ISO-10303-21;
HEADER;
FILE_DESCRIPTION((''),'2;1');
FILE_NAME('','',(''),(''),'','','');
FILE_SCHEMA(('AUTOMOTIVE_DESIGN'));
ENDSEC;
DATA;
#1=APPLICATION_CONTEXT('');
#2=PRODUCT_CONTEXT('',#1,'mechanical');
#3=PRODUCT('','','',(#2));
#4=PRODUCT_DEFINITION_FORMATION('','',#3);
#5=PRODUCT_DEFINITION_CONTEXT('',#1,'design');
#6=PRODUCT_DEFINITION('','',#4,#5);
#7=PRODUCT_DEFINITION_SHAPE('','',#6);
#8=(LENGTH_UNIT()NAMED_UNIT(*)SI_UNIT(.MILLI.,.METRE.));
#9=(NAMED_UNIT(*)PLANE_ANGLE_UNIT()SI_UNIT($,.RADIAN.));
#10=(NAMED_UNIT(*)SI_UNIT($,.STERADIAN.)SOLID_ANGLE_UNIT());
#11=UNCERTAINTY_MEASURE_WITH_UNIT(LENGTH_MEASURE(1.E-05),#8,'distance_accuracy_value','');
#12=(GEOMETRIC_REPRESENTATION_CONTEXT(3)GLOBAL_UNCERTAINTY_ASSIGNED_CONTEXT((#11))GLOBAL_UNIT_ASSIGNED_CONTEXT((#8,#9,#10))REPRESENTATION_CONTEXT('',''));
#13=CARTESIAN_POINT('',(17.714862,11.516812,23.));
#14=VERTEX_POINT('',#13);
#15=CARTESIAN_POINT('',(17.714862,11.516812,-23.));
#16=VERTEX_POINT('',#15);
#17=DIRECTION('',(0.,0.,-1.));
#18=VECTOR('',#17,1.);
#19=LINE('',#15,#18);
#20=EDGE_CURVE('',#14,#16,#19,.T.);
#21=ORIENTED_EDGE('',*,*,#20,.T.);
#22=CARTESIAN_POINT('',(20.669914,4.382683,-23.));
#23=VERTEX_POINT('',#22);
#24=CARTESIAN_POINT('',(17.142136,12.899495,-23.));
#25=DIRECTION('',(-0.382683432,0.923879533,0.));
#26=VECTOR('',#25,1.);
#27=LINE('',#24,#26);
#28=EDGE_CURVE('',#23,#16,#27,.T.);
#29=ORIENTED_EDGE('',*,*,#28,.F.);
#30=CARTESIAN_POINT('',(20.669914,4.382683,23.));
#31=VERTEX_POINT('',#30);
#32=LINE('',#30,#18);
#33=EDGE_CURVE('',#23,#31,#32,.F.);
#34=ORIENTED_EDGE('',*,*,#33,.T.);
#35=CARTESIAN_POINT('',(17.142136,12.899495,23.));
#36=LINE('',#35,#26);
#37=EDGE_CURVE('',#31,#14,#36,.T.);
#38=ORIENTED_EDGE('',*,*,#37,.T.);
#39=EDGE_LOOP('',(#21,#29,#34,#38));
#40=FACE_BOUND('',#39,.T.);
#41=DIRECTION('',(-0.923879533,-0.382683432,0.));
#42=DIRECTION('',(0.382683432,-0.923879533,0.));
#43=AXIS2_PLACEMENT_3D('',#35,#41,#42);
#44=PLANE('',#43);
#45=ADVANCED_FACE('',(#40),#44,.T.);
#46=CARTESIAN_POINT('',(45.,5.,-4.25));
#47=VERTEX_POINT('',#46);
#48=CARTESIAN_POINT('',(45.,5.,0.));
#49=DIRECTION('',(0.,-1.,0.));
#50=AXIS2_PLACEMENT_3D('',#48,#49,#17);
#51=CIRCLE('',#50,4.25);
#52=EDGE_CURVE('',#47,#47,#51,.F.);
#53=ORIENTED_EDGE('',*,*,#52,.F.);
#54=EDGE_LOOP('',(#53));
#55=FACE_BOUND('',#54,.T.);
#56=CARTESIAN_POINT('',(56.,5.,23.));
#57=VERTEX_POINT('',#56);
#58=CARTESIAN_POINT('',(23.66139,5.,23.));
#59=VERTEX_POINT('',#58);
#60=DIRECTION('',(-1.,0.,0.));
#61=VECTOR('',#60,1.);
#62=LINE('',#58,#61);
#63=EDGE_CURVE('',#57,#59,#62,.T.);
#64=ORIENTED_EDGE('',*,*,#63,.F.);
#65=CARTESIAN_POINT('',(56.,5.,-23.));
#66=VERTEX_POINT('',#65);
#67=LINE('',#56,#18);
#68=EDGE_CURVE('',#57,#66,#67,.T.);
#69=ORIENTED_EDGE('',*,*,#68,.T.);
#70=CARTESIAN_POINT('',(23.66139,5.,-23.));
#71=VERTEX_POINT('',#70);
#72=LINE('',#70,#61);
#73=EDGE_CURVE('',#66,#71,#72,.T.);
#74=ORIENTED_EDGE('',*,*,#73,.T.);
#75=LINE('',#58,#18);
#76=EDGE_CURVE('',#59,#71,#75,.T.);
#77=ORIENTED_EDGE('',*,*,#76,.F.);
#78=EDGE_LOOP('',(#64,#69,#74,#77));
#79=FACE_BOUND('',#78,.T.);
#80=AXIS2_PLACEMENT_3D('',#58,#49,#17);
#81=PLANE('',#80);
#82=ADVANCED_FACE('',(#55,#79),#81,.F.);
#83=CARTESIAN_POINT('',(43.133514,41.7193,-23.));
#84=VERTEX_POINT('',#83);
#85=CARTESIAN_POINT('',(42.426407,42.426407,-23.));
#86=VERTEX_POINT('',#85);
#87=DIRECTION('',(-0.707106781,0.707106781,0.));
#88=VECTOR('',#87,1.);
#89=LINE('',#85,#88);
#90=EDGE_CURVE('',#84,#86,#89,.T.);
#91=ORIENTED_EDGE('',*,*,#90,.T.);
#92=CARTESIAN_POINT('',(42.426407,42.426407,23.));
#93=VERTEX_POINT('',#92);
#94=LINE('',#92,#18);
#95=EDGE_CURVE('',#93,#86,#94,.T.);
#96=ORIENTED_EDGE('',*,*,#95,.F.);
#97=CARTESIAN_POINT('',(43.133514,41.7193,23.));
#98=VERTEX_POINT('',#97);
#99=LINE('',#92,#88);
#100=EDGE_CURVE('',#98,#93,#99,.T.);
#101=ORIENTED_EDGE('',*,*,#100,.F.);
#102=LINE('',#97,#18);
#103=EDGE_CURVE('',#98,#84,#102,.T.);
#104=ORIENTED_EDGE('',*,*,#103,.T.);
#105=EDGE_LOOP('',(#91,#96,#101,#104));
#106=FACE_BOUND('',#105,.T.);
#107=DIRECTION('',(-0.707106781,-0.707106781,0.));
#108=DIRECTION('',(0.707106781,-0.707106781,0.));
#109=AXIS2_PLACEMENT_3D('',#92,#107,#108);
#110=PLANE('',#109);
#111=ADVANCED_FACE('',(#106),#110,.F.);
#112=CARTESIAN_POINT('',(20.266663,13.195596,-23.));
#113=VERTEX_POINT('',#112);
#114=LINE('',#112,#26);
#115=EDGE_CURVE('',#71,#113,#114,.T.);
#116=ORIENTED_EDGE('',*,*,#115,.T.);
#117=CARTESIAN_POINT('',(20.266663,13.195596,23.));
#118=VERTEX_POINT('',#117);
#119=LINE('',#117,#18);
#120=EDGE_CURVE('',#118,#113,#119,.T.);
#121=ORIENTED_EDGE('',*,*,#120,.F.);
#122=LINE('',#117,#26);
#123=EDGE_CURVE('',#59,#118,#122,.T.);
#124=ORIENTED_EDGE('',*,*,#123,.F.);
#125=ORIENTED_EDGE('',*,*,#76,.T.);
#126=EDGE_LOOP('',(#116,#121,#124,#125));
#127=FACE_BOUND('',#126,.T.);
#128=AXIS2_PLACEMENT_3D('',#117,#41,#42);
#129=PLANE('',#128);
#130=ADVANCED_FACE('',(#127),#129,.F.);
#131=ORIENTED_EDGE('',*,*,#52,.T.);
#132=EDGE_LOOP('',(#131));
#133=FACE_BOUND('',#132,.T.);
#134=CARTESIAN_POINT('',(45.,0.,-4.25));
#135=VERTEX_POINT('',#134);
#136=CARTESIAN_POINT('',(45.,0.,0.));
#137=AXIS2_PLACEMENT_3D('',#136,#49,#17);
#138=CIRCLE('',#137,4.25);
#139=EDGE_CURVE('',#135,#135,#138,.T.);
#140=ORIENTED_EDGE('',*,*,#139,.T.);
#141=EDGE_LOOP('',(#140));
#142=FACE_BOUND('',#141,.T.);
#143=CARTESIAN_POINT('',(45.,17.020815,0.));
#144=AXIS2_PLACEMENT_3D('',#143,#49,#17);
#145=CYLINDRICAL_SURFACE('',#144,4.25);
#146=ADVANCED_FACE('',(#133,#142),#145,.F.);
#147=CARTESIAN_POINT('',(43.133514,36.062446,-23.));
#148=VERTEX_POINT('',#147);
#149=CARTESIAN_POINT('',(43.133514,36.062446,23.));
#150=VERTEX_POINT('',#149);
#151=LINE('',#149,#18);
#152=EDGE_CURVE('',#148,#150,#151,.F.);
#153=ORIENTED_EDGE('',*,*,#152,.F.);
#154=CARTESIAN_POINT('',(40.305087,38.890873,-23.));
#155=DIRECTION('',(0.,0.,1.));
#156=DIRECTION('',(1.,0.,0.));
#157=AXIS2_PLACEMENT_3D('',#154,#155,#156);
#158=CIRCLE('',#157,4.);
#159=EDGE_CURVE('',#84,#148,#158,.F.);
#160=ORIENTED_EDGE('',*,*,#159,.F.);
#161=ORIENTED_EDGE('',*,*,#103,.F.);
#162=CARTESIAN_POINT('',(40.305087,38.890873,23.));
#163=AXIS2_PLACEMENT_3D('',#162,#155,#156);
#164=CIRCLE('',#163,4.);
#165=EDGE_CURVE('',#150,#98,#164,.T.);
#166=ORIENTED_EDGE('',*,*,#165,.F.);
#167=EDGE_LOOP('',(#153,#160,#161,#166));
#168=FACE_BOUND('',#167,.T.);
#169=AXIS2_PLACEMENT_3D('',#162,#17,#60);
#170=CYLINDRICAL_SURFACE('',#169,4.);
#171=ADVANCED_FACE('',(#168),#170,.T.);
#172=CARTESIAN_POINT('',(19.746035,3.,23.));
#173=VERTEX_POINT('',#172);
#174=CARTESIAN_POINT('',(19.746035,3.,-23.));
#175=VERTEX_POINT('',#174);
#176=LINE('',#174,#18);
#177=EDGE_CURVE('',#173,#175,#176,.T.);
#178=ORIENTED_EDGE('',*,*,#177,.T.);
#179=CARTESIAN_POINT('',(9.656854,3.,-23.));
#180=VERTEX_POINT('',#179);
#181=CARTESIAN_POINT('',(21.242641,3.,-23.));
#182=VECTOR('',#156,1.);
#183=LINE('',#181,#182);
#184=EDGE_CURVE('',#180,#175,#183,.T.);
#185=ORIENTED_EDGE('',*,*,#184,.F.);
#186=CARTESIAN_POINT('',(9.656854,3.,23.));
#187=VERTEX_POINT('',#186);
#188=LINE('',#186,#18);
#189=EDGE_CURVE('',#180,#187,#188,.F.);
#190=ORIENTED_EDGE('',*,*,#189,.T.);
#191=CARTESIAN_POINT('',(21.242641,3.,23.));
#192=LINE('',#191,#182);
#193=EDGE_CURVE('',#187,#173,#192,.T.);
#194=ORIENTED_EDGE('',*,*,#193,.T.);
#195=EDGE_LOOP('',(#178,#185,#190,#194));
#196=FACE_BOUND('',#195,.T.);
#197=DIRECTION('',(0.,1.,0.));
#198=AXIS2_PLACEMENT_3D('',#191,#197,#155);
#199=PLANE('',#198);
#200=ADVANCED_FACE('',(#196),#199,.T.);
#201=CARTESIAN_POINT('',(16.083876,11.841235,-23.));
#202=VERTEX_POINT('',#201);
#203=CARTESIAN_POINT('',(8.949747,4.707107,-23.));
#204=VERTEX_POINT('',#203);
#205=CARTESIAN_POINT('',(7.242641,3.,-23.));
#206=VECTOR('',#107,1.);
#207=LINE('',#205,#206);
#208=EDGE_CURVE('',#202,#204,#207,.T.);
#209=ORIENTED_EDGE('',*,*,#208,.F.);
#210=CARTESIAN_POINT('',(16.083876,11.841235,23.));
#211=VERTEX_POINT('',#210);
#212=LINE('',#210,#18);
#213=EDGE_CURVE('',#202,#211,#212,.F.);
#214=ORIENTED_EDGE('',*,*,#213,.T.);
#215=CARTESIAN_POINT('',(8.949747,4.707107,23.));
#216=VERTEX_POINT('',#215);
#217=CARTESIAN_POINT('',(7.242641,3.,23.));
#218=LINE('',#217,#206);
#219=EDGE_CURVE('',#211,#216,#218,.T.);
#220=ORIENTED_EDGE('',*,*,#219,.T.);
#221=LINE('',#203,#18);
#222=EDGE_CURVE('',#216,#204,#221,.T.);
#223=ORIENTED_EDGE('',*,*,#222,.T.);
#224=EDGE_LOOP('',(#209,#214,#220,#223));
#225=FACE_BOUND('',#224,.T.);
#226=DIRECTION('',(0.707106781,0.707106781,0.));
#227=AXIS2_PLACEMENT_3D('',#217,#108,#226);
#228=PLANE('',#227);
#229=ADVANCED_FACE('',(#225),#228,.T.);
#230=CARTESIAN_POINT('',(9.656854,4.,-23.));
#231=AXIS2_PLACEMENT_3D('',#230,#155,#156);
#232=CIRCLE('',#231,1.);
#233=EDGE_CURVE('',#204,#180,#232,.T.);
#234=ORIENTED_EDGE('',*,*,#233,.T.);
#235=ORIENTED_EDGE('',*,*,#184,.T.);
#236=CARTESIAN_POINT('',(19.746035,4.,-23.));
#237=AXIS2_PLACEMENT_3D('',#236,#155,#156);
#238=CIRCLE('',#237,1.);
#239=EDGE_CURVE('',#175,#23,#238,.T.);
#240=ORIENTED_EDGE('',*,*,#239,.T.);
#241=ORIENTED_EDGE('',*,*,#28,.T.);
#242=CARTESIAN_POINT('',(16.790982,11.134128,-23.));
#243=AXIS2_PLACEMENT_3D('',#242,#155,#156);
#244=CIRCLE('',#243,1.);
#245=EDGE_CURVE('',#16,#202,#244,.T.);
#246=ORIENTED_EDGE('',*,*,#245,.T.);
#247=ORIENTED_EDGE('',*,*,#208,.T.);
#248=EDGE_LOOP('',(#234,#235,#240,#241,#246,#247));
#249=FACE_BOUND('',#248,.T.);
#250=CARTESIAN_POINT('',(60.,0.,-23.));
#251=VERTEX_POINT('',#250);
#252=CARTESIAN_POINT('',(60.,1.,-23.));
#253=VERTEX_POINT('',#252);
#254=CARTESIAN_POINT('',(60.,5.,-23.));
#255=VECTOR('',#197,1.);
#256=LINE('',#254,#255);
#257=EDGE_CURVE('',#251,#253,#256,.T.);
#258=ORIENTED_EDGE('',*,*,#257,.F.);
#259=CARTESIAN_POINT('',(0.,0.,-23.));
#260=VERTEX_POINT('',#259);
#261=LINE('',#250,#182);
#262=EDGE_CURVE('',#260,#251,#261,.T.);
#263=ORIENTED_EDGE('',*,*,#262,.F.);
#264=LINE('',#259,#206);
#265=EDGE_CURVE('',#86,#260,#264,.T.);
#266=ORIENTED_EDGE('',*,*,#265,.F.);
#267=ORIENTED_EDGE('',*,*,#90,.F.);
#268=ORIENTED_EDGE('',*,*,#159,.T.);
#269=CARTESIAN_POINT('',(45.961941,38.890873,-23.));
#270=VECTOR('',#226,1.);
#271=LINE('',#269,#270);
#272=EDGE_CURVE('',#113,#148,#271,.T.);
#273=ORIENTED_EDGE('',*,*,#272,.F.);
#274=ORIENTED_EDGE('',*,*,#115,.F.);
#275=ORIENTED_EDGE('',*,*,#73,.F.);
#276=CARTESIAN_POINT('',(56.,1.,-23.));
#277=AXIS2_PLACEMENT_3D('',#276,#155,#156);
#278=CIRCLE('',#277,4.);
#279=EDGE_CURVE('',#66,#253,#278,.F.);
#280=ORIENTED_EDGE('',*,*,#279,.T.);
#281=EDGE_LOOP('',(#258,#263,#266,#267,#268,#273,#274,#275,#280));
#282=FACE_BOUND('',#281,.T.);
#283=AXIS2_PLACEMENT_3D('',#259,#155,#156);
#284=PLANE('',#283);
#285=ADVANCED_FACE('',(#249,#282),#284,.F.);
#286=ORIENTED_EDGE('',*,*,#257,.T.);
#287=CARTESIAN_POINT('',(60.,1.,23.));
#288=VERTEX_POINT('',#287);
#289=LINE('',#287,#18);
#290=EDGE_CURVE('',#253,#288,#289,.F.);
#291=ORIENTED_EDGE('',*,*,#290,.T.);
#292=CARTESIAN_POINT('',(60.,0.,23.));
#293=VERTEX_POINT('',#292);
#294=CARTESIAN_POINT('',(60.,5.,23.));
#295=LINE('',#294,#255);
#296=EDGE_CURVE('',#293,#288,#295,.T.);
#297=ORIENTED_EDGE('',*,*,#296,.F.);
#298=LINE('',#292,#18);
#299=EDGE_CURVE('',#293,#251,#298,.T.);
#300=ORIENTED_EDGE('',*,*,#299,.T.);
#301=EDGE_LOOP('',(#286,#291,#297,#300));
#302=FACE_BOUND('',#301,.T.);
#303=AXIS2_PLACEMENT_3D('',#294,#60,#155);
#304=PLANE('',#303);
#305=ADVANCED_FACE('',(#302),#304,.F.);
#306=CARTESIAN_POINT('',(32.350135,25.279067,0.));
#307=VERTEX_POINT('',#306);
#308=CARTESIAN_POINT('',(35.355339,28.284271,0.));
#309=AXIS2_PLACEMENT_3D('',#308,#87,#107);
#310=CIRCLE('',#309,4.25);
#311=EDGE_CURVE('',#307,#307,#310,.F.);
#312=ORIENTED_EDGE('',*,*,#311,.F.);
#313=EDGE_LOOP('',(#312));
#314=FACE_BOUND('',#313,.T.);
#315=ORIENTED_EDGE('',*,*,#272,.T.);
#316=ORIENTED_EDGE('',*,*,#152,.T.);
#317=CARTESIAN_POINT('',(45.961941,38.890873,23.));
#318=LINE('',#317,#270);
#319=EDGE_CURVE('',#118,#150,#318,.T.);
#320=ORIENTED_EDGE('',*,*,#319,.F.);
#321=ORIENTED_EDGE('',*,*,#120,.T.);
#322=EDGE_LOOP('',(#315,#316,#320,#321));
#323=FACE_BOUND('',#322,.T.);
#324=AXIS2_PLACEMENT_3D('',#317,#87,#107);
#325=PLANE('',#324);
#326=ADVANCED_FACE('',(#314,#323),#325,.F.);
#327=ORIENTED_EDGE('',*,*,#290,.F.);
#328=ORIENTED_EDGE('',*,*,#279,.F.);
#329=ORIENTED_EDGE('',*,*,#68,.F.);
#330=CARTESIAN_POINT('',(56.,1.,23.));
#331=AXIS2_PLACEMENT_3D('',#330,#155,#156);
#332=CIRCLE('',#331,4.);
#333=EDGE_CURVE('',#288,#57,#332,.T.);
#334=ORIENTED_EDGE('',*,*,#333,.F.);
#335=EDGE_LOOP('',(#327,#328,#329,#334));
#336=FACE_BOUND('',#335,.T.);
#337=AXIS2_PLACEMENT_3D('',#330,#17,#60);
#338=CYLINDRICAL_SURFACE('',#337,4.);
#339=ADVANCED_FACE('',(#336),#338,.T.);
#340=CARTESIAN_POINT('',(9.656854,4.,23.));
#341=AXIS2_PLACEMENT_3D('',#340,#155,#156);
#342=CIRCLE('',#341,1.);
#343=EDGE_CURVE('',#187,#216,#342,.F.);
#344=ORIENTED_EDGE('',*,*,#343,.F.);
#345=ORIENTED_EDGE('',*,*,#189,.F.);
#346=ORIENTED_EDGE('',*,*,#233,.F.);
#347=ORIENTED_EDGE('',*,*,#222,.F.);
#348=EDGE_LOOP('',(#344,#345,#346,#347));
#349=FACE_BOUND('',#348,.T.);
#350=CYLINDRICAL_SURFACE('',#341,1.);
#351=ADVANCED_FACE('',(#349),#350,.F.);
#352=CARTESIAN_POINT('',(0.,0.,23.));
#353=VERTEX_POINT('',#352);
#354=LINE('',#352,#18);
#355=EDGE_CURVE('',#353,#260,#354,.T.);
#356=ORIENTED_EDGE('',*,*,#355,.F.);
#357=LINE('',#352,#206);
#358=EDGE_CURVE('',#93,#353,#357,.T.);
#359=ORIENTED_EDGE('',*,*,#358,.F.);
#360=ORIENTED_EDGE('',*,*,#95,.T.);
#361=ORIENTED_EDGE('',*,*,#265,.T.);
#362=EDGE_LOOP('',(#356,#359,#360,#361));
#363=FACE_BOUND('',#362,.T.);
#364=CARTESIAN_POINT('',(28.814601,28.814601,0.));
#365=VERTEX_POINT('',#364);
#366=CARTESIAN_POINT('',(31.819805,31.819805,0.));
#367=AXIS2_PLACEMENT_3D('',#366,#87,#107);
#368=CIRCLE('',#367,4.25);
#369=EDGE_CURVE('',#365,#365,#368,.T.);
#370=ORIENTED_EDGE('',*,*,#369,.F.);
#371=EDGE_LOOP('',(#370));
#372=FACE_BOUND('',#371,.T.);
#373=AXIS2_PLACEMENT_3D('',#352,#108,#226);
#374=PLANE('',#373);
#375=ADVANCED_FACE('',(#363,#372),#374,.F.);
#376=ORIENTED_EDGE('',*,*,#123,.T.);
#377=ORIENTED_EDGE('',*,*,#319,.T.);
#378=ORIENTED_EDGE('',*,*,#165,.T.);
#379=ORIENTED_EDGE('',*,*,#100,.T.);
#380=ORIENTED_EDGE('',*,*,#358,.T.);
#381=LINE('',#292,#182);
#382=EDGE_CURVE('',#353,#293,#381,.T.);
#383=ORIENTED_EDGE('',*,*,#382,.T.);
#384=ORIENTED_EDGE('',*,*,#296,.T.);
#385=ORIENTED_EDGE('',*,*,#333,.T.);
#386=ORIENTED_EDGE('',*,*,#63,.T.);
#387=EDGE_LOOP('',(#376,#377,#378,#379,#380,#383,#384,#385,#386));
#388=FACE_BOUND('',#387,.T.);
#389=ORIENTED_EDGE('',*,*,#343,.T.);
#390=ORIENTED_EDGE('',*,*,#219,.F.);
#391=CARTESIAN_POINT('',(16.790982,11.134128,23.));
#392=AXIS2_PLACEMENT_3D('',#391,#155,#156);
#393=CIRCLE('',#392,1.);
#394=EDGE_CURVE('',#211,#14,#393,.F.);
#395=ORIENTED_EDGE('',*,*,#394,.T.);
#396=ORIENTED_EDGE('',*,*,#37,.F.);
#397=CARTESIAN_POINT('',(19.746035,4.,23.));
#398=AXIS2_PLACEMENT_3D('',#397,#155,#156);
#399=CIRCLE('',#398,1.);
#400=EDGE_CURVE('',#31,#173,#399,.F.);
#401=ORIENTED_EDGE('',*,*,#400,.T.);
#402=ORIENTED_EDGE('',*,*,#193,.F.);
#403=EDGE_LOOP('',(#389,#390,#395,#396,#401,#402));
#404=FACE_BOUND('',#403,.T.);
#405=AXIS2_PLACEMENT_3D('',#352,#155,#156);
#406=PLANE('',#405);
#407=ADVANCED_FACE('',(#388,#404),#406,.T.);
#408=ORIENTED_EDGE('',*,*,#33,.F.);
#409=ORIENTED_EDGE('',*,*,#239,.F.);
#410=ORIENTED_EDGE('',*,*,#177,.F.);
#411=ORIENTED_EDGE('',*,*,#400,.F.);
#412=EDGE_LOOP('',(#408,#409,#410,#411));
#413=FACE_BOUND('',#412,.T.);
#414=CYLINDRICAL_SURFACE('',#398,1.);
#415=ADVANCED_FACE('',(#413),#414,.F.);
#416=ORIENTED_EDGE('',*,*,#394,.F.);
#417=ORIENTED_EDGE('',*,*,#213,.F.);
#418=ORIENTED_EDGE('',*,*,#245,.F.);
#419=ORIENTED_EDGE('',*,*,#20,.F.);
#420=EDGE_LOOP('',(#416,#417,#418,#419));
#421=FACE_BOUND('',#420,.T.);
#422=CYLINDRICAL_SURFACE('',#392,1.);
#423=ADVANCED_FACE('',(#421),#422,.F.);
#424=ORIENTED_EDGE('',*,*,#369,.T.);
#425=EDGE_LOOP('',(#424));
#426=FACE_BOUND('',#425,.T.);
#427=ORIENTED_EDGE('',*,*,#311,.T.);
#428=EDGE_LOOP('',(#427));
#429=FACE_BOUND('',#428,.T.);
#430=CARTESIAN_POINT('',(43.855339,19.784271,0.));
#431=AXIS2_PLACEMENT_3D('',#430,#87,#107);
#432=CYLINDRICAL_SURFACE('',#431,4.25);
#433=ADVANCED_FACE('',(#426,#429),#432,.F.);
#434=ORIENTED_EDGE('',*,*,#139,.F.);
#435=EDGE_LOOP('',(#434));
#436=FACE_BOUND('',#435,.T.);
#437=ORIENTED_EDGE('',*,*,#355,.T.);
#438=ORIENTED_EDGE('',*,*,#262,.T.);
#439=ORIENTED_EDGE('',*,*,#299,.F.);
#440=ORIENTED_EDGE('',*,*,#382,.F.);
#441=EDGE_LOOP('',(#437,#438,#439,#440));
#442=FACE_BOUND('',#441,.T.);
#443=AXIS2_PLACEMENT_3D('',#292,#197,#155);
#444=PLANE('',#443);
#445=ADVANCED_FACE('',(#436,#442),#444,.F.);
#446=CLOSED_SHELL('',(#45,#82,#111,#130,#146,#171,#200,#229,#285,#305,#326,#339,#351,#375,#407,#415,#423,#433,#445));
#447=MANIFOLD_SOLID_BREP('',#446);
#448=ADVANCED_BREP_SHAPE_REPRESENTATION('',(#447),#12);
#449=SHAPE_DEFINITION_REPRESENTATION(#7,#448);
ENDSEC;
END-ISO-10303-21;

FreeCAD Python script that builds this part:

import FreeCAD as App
import Part
import Sketcher
Q = App.Units.Quantity


def edges_at(feature, points):
    """Names of the edges that pass closest to the given points."""
    edges = feature.Shape.Edges
    near = lambda p: min(range(len(edges)), key=lambda i: edges[i].distToShape(Part.Vertex(*p))[0])
    return sorted({f"Edge{near(p) + 1}" for p in points})

doc = App.newDocument("Part")
body = doc.addObject("PartDesign::Body", "Body")

# Sketch on XY plane
sketch1 = doc.addObject("Sketcher::SketchObject", "Sketch")
body.addObject(sketch1)
sketch1.AttachmentSupport = (doc.XY_Plane, [""])
sketch1.MapMode = "FlatFace"
sketch1.addGeometry([
    Part.LineSegment(App.Vector(42, 42, 0), App.Vector(0, 0, 0)),  # 0
    Part.LineSegment(App.Vector(0, 0, 0), App.Vector(60, 0, 0)),  # 1
    Part.LineSegment(App.Vector(60, 0, 0), App.Vector(60, 5, 0)),  # 2
    Part.LineSegment(App.Vector(60, 5, 0), App.Vector(24, 5, 0)),  # 3
    Part.LineSegment(App.Vector(24, 5, 0), App.Vector(20, 13, 0)),  # 4
    Part.LineSegment(App.Vector(20, 13, 0), App.Vector(46, 39, 0)),  # 5
    Part.LineSegment(App.Vector(46, 39, 0), App.Vector(42, 42, 0)),  # 6
    Part.LineSegment(App.Vector(17, 13, 0), App.Vector(21, 3, 0)),  # 7
    Part.LineSegment(App.Vector(21, 3, 0), App.Vector(7, 3, 0)),  # 8
    Part.LineSegment(App.Vector(7, 3, 0), App.Vector(17, 13, 0)),  # 9
], False)
sketch1.addConstraint([
    Sketcher.Constraint("Coincident", 0, 2, 1, 1),
    Sketcher.Constraint("Coincident", 1, 2, 2, 1),
    Sketcher.Constraint("Coincident", 2, 2, 3, 1),
    Sketcher.Constraint("Coincident", 3, 2, 4, 1),
    Sketcher.Constraint("Coincident", 4, 2, 5, 1),
    Sketcher.Constraint("Coincident", 5, 2, 6, 1),
    Sketcher.Constraint("Coincident", 6, 2, 0, 1),
    Sketcher.Constraint("Coincident", 7, 2, 8, 1),
    Sketcher.Constraint("Coincident", 8, 2, 9, 1),
    Sketcher.Constraint("Coincident", 9, 2, 7, 1),
    Sketcher.Constraint("Horizontal", 1),
    Sketcher.Constraint("Vertical", 2),
    Sketcher.Constraint("Horizontal", 3),
    Sketcher.Constraint("Horizontal", 8),
    Sketcher.Constraint("Coincident", 0, 2, -1, 1),
    Sketcher.Constraint("Parallel", 0, 5),
    Sketcher.Constraint("Perpendicular", 5, 6),
    Sketcher.Constraint("Parallel", 4, 7),
    Sketcher.Constraint("Perpendicular", 6, 9),
    Sketcher.Constraint("DistanceX", 1, 1, 1, 2, 60.0),
    Sketcher.Constraint("DistanceX", 8, 2, 8, 1, 14.0),
    Sketcher.Constraint("DistanceY", 2, 1, 2, 2, 5.0),
    Sketcher.Constraint("Angle", 0, Q("-135 deg")),
    Sketcher.Constraint("Distance", 0, 60.0),
    Sketcher.Constraint("Distance", 6, 5.0),
    Sketcher.Constraint("Distance", 9, 14.0),
    Sketcher.Constraint("DistanceY", -1, 1, 7, 2, 3.0),
    Sketcher.Constraint("DistanceX", 3, 2, 3, 1, 36.33861),
    Sketcher.Constraint("DistanceX", 8, 2, 5, 2, 38.7193),
])
pad1 = doc.addObject("PartDesign::Pad", "Pad")
body.addObject(pad1)
pad1.Profile = sketch1
pad1.Length = 46
pad1.Midplane = True

# Sketch on an angled plane
sketch2 = doc.addObject("Sketcher::SketchObject", "Sketch001")
body.addObject(sketch2)
sketch2.Placement = App.Placement(App.Vector(0, 0, 0), App.Rotation(App.Vector(0, 0, 1), App.Vector(0.707106781, 0.707106781, 0), App.Vector(-0.707106781, 0.707106781, 0), "ZXY"))
sketch2.addGeometry(Part.Circle(App.Vector(0, 45, 0), App.Vector(0, 0, 1), 4.2), False)
sketch2.addConstraint([
    Sketcher.Constraint("PointOnObject", 0, 3, -2),
    Sketcher.Constraint("Diameter", 0, 8.5),
    Sketcher.Constraint("DistanceY", -1, 1, 0, 3, 45.0),
])
pocket1 = doc.addObject("PartDesign::Pocket", "Pocket")
body.addObject(pocket1)
pocket1.Profile = sketch2
pocket1.Length = 5

# Sketch on XZ plane
sketch3 = doc.addObject("Sketcher::SketchObject", "Sketch002")
body.addObject(sketch3)
sketch3.AttachmentSupport = (doc.XZ_Plane, [""])
sketch3.MapMode = "FlatFace"
sketch3.addGeometry(Part.Circle(App.Vector(45, 0, 0), App.Vector(0, 0, 1), 4.2), False)
sketch3.addConstraint([
    Sketcher.Constraint("PointOnObject", 0, 3, -1),
    Sketcher.Constraint("Diameter", 0, 8.5),
    Sketcher.Constraint("DistanceX", -1, 1, 0, 3, 45.0),
])
pocket2 = doc.addObject("PartDesign::Pocket", "Pocket001")
body.addObject(pocket2)
pocket2.Profile = sketch3
pocket2.Length = 5
doc.recompute()

fillet = doc.addObject("PartDesign::Fillet", "Fillet")
body.addObject(fillet)
fillet.Base = (pocket2, edges_at(pocket2, [(45.962, 38.891, 0), (60, 5, 0)]))
fillet.Radius = 4
doc.recompute()

fillet2 = doc.addObject("PartDesign::Fillet", "Fillet001")
body.addObject(fillet2)
fillet2.Base = (fillet, edges_at(fillet, [(17.142, 12.899, 0), (7.243, 3, 0), (21.243, 3, 0)]))
fillet2.Radius = 1

doc.recompute()
